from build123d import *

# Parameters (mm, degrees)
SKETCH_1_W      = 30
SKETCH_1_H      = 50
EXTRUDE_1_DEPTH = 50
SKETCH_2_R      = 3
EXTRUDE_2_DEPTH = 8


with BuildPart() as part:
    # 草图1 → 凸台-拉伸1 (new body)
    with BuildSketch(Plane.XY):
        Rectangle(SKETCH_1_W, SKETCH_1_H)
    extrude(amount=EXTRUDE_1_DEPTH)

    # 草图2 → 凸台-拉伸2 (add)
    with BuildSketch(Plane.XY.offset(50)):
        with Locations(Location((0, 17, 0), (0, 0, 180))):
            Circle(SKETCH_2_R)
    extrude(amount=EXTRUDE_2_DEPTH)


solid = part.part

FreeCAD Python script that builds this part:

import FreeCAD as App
import Part
import Sketcher

V = App.Vector


def add_polygon(sketch, points):
    """Adds a closed chain of lines whose ends are joined by coincident constraints."""
    first, n = sketch.GeometryCount, len(points)
    for a, b in zip(points, points[1:] + points[:1]):
        sketch.addGeometry(Part.LineSegment(App.Vector(*a, 0), App.Vector(*b, 0)), False)
    for i in range(n):
        sketch.addConstraint(Sketcher.Constraint("Coincident", first + i, 2, first + (i + 1) % n, 1))

doc = App.newDocument("Part")
body = doc.addObject("PartDesign::Body", "Body")

# Sketch on XY plane
sketch1 = body.newObject("Sketcher::SketchObject", "Sketch")
sketch1.AttachmentSupport = (doc.getObject("XY_Plane"), [""])
sketch1.MapMode = "FlatFace"
add_polygon(sketch1, [(-15, 25), (-15, -25), (15, -25), (15, 25)])  # lines 0-3
sketch1.addConstraint([
    Sketcher.Constraint("Vertical", 0),
    Sketcher.Constraint("Horizontal", 1),
    Sketcher.Constraint("Vertical", 2),
    Sketcher.Constraint("Horizontal", 3),
    Sketcher.Constraint("Symmetric", 0, 2, 2, 2, -1, 1),
    Sketcher.Constraint("DistanceX", 1, 1, 1, 2, 30.0),
    Sketcher.Constraint("DistanceY", 0, 2, 0, 1, 50.0),
])
pad1 = body.newObject("PartDesign::Pad", "Pad")
pad1.Profile = sketch1
pad1.Length = 50

# Sketch on XY plane
sketch2 = body.newObject("Sketcher::SketchObject", "Sketch001")
sketch2.AttachmentSupport = (doc.getObject("XY_Plane"), [""])
sketch2.MapMode = "FlatFace"
sketch2.AttachmentOffset = App.Placement(V(0, 0, 50), App.Rotation())
sketch2.addGeometry(Part.Circle(V(0, 17, 0), V(0, 0, 1), 3), False)
sketch2.addConstraint([
    Sketcher.Constraint("PointOnObject", 0, 3, -2),
    Sketcher.Constraint("Diameter", 0, 6.0),
    Sketcher.Constraint("DistanceY", -1, 1, 0, 3, 17.0),
])
pad2 = body.newObject("PartDesign::Pad", "Pad001")
pad2.Profile = sketch2
pad2.Length = 8

doc.recompute()
